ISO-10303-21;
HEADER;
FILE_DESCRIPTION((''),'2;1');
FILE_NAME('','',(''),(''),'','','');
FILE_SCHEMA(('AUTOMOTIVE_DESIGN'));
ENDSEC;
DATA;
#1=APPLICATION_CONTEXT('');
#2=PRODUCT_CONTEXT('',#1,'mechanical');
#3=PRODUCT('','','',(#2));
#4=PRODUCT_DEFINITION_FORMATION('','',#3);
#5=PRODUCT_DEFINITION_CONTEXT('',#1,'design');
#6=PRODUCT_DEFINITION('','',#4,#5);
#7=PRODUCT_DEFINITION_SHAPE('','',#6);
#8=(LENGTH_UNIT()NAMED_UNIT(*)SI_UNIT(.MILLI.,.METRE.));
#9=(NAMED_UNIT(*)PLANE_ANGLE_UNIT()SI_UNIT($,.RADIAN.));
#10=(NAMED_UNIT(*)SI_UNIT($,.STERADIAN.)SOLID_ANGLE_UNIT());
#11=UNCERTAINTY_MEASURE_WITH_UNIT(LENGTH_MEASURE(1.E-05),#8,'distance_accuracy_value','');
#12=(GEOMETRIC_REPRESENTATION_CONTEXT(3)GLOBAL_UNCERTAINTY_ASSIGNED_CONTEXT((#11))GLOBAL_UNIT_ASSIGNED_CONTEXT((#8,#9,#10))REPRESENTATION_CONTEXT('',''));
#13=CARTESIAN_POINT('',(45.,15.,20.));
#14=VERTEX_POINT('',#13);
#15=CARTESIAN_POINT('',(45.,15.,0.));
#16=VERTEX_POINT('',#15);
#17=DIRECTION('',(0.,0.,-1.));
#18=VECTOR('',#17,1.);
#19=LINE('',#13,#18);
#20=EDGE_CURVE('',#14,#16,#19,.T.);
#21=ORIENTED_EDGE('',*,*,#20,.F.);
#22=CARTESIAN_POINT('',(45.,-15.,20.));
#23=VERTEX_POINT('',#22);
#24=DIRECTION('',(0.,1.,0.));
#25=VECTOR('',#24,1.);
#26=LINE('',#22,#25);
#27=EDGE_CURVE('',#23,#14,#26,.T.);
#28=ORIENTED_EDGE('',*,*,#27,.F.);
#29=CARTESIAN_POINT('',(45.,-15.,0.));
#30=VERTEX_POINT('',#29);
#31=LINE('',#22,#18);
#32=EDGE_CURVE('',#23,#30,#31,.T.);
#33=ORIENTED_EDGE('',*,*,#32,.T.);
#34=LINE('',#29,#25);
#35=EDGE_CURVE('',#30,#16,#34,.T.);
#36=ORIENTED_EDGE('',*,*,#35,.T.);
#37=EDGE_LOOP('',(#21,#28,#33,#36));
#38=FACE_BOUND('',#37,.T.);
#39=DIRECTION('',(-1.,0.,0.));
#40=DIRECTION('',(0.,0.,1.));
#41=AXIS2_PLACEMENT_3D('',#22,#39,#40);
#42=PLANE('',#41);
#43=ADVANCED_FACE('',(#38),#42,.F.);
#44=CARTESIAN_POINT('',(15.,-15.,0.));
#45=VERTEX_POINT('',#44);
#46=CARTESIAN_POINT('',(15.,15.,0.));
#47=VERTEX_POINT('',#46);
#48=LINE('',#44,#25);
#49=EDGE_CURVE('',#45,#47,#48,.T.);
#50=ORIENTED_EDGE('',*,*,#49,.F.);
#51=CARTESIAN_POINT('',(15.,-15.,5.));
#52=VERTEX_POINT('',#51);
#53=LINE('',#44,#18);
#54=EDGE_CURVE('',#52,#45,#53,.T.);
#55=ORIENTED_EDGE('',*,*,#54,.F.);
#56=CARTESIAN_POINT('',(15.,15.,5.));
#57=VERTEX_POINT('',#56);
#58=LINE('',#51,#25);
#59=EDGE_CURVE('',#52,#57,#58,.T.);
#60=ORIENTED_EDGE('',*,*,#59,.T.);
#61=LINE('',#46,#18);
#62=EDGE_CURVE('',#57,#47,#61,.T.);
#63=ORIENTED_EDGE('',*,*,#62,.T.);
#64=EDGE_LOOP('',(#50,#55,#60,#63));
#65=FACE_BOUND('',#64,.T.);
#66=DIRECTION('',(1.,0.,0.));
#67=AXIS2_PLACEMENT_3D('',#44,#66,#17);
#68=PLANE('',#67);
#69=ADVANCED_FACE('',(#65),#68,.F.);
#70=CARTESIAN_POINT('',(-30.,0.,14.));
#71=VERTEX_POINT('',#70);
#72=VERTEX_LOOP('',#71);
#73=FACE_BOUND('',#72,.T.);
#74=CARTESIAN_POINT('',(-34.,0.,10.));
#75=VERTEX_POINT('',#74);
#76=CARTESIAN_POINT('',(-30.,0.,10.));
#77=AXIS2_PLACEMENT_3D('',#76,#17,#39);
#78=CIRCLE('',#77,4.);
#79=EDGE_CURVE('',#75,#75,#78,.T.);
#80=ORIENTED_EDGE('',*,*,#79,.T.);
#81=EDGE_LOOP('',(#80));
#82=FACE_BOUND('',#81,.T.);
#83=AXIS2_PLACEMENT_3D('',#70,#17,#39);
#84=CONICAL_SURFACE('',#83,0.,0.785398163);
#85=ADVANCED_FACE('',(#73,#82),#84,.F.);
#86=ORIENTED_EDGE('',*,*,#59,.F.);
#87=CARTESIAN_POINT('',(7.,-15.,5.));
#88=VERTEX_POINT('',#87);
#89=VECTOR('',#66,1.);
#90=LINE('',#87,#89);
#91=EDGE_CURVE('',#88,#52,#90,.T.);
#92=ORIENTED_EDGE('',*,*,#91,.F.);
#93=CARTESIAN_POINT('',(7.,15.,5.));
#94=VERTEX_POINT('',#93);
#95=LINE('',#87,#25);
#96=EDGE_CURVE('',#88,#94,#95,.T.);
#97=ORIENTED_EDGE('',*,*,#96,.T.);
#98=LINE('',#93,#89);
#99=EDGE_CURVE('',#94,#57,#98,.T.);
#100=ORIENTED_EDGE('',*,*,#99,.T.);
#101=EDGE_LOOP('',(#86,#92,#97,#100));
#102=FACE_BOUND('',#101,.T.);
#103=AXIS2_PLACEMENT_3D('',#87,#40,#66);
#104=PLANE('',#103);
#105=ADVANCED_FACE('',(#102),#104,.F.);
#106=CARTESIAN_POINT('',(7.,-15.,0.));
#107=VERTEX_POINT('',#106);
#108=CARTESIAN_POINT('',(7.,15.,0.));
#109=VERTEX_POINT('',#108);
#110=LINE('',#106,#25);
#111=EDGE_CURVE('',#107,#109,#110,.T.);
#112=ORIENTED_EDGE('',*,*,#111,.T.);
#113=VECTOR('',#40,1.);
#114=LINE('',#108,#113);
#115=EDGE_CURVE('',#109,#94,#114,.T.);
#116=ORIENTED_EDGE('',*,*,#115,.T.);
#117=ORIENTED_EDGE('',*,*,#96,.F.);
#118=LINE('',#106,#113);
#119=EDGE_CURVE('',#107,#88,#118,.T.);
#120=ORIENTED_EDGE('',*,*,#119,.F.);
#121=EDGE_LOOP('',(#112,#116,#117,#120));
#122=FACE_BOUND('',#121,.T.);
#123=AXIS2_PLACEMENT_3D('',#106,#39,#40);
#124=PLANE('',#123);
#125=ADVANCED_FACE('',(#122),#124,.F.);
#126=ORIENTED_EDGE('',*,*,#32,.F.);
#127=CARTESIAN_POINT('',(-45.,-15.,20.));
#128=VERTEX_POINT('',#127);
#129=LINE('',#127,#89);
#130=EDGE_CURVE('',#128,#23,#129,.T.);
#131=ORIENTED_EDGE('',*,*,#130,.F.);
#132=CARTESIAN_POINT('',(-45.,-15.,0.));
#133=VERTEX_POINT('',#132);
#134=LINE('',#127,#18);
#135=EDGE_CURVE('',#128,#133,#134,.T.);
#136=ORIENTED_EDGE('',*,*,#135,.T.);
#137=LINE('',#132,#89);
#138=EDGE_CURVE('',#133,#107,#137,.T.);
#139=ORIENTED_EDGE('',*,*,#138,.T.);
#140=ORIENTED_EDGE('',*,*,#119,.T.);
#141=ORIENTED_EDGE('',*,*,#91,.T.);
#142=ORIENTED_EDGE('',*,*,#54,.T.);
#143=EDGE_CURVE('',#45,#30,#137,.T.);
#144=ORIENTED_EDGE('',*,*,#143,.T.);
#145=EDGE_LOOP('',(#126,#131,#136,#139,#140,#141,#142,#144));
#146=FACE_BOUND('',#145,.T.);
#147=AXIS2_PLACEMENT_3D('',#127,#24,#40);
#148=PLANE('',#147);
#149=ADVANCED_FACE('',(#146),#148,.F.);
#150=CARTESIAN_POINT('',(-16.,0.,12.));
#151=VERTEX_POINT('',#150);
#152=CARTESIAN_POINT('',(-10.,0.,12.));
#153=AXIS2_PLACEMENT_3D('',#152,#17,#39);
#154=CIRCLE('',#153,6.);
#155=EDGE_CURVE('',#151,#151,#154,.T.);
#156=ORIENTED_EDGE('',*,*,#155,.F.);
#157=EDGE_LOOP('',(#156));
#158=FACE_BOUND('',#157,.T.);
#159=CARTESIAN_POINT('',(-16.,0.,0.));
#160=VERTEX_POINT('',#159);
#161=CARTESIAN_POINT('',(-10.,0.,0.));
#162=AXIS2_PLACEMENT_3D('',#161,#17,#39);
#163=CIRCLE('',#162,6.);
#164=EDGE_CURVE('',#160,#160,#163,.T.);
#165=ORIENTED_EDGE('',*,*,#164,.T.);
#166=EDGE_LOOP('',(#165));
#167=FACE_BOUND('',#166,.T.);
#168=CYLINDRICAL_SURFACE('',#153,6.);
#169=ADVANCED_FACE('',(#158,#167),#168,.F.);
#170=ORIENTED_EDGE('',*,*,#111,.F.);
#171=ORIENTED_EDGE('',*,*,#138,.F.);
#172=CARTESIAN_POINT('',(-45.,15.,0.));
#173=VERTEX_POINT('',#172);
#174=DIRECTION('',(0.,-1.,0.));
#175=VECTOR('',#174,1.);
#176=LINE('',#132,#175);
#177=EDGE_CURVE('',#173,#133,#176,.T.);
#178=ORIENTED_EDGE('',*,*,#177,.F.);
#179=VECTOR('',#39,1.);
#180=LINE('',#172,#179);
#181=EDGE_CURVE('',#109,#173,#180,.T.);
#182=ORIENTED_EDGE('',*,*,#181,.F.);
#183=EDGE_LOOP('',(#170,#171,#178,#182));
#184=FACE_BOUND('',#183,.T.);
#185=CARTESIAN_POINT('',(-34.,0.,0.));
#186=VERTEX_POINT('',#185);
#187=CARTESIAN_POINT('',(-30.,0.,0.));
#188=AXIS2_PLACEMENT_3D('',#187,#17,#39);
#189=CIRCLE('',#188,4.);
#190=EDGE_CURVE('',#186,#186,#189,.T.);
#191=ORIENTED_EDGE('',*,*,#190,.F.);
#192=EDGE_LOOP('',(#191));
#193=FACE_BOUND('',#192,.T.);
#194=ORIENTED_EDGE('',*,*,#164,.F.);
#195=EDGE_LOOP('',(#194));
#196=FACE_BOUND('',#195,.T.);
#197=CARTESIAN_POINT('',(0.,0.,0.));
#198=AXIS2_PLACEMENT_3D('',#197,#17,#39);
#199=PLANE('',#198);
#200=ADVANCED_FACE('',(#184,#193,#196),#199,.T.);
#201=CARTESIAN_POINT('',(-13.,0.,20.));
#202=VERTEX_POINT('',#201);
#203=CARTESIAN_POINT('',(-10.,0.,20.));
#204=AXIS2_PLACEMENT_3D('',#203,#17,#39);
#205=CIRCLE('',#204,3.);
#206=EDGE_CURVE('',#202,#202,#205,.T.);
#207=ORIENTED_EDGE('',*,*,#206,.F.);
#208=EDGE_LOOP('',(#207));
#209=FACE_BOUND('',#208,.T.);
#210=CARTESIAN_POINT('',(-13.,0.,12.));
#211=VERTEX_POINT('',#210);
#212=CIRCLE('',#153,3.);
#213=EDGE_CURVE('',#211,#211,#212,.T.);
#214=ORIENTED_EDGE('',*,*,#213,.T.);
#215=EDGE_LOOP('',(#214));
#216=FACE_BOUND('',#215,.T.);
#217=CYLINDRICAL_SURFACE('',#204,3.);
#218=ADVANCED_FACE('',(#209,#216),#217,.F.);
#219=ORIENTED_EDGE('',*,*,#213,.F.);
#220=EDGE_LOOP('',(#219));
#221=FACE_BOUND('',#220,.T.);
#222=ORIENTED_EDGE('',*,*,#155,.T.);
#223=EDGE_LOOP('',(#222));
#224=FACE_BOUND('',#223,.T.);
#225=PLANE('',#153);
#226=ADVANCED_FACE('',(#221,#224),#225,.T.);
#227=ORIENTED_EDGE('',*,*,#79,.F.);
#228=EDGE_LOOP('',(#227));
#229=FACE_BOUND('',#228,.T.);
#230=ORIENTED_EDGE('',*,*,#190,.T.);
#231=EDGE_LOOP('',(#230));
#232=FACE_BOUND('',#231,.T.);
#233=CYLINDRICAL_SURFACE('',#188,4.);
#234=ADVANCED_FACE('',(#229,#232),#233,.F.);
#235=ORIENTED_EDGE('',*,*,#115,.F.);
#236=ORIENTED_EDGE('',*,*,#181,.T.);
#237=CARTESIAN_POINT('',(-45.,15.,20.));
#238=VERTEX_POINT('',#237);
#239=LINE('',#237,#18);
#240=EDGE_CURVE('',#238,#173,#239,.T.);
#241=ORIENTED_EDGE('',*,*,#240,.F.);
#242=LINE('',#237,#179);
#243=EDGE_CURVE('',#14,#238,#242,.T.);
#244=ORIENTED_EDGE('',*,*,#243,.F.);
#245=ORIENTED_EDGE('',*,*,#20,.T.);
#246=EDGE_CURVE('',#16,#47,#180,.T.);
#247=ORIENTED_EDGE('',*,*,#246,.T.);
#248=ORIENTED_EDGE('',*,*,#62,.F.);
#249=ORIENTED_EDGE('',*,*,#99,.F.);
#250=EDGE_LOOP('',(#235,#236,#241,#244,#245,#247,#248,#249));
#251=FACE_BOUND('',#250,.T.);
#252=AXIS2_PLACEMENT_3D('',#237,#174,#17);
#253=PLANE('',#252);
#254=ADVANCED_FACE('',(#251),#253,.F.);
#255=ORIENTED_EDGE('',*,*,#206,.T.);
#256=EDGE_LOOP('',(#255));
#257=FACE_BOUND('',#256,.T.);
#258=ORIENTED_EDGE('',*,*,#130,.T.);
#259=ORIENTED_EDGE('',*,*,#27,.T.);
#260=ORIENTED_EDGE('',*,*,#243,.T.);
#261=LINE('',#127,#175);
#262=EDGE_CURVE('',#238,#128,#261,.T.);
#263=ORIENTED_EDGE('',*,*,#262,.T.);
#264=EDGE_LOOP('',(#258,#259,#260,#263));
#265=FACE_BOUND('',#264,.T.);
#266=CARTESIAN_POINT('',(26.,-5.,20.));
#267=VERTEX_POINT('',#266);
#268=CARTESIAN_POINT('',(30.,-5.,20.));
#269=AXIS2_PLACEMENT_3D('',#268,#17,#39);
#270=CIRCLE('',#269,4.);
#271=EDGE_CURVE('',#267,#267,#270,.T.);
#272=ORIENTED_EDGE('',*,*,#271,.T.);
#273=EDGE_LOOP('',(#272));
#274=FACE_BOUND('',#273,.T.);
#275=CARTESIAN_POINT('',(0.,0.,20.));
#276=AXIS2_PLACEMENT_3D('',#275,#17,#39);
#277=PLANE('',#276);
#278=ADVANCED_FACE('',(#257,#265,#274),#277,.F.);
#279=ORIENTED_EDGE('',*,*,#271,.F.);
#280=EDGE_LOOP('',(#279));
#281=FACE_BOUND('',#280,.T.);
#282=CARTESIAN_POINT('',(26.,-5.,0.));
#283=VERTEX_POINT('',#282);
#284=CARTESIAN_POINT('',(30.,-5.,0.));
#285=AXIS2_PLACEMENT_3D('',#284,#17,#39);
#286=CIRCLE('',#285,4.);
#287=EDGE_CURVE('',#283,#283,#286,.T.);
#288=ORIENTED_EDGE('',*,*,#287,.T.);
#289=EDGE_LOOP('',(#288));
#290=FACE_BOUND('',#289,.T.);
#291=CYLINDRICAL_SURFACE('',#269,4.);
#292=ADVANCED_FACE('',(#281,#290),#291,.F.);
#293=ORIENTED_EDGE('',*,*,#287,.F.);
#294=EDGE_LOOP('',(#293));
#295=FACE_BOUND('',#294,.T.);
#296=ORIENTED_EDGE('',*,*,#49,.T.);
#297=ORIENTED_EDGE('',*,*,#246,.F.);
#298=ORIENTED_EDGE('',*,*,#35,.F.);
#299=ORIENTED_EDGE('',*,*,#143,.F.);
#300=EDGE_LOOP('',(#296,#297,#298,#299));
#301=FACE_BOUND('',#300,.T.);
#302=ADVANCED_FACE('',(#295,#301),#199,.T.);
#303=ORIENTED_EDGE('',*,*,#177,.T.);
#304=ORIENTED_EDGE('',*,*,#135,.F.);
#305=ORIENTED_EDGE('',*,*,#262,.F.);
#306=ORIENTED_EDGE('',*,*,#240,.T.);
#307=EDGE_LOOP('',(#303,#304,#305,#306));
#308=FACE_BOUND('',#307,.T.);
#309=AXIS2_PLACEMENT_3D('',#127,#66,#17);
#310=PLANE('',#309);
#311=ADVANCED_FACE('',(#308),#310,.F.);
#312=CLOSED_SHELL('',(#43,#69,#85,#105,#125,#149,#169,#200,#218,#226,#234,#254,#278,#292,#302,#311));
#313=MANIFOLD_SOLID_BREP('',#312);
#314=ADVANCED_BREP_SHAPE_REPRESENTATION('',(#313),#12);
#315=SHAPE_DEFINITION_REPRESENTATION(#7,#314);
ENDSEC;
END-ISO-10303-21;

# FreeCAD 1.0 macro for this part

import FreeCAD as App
import Part
import Sketcher

V = App.Vector

doc = App.newDocument("Part")
params = doc.addObject("Spreadsheet::Sheet", "Params")
for row, (alias, value) in enumerate([
    ("sketch1_width", "90 mm"),
    ("sketch1_height", "30 mm"),
    ("pad1_length", "20 mm"),
    ("sketch2_width", "4 mm"),
    ("sketch2_height", "14 mm"),
    ("sketch2_height2", "10 mm"),
    ("groove_angle", "360 deg"),
    ("sketch3_diameter", "12 mm"),
    ("pocket1_length", "12 mm"),
    ("sketch4_diameter", "6 mm"),
    ("sketch5_width", "8 mm"),
    ("sketch5_height", "5 mm"),
    ("sketch6_diameter", "8 mm"),
], start=1):
    params.set(f"A{row}", alias)
    params.set(f"B{row}", "=" + value)
    params.setAlias(f"B{row}", alias)

body = doc.addObject("PartDesign::Body", "Body")

sketch1 = doc.addObject("Sketcher::SketchObject", "Sketch")
body.addObject(sketch1)
sketch1.AttachmentSupport = (doc.XY_Plane, [""])
sketch1.MapMode = "FlatFace"
sketch1.addGeometry([
    Part.LineSegment(V(-45, 15, 0), V(-45, -15, 0)),
    Part.LineSegment(V(-45, -15, 0), V(45, -15, 0)),
    Part.LineSegment(V(45, -15, 0), V(45, 15, 0)),
    Part.LineSegment(V(45, 15, 0), V(-45, 15, 0)),
], False)
sketch1.addConstraint([
    Sketcher.Constraint("Coincident", 0, 2, 1, 1),
    Sketcher.Constraint("Coincident", 1, 2, 2, 1),
    Sketcher.Constraint("Coincident", 2, 2, 3, 1),
    Sketcher.Constraint("Coincident", 3, 2, 0, 1),
    Sketcher.Constraint("Vertical", 0),
    Sketcher.Constraint("Horizontal", 1),
    Sketcher.Constraint("Vertical", 2),
    Sketcher.Constraint("Horizontal", 3),
    Sketcher.Constraint("Symmetric", 0, 2, 2, 2, -1, 1),
    Sketcher.Constraint("DistanceX", 1, 1, 1, 2, 90.0),
    Sketcher.Constraint("DistanceY", 0, 2, 0, 1, 30.0),
])
sketch1.setExpression("Constraints[9]", "Params.sketch1_width")
sketch1.setExpression("Constraints[10]", "Params.sketch1_height")
pad1 = doc.addObject("PartDesign::Pad", "Pad")
body.addObject(pad1)
pad1.Profile = sketch1
pad1.setExpression("Length", "Params.pad1_length")

sketch2 = doc.addObject("Sketcher::SketchObject", "Sketch001")
body.addObject(sketch2)
sketch2.AttachmentSupport = (doc.XZ_Plane, [""])
sketch2.MapMode = "FlatFace"
sketch2.addGeometry([
    Part.LineSegment(V(-26, 0, 0), V(-30, 0, 0)),
    Part.LineSegment(V(-30, 0, 0), V(-30, 14, 0)),
    Part.LineSegment(V(-30, 14, 0), V(-26, 10, 0)),
    Part.LineSegment(V(-26, 10, 0), V(-26, 0, 0)),
], False)
sketch2.addGeometry(Part.LineSegment(V(-30, 0, 0), V(-30, 14, 0)), True)
sketch2.addConstraint([
    Sketcher.Constraint("Coincident", 0, 2, 1, 1),
    Sketcher.Constraint("Coincident", 1, 2, 2, 1),
    Sketcher.Constraint("Coincident", 2, 2, 3, 1),
    Sketcher.Constraint("Coincident", 3, 2, 0, 1),
    Sketcher.Constraint("Horizontal", 0),
    Sketcher.Constraint("Vertical", 1),
    Sketcher.Constraint("Vertical", 3),
    Sketcher.Constraint("Vertical", 4),
    Sketcher.Constraint("Coincident", 4, 1, 0, 2),
    Sketcher.Constraint("PointOnObject", 0, 2, -1),
    Sketcher.Constraint("Equal", 1, 4),
    Sketcher.Constraint("DistanceX", 0, 2, 0, 1, 4.0),
    Sketcher.Constraint("DistanceY", 1, 1, 1, 2, 14.0),
    Sketcher.Constraint("DistanceY", 3, 2, 3, 1, 10.0),
    Sketcher.Constraint("DistanceX", 0, 2, -1, 1, 30.0),
])
sketch2.setExpression("Constraints[11]", "Params.sketch2_width")
sketch2.setExpression("Constraints[12]", "Params.sketch2_height")
sketch2.setExpression("Constraints[13]", "Params.sketch2_height2")
groove = doc.addObject("PartDesign::Groove", "Groove")
body.addObject(groove)
groove.Profile = sketch2
groove.ReferenceAxis = (sketch2, ["Axis0"])
groove.setExpression("Angle", "Params.groove_angle")

sketch3 = doc.addObject("Sketcher::SketchObject", "Sketch002")
body.addObject(sketch3)
sketch3.AttachmentSupport = (doc.XY_Plane, [""])
sketch3.MapMode = "FlatFace"
sketch3.addGeometry(Part.Circle(V(-10, 0, 0), V(0, 0, 1), 6), False)
sketch3.addConstraint([
    Sketcher.Constraint("PointOnObject", 0, 3, -1),
    Sketcher.Constraint("Diameter", 0, 12.0),
    Sketcher.Constraint("DistanceX", 0, 3, -1, 1, 10.0),
])
sketch3.setExpression("Constraints[1]", "Params.sketch3_diameter")
pocket1 = doc.addObject("PartDesign::Pocket", "Pocket")
body.addObject(pocket1)
pocket1.Profile = sketch3
pocket1.setExpression("Length", "Params.pocket1_length")
pocket1.Reversed = True

sketch4 = doc.addObject("Sketcher::SketchObject", "Sketch003")
body.addObject(sketch4)
sketch4.AttachmentSupport = (doc.XY_Plane, [""])
sketch4.MapMode = "FlatFace"
sketch4.AttachmentOffset = App.Placement(V(0, 0, 12), App.Rotation())
sketch4.addGeometry(Part.Circle(V(-10, 0, 0), V(0, 0, 1), 3), False)
sketch4.addConstraint([
    Sketcher.Constraint("PointOnObject", 0, 3, -1),
    Sketcher.Constraint("Diameter", 0, 6.0),
    Sketcher.Constraint("DistanceX", 0, 3, -1, 1, 10.0),
])
sketch4.setExpression("Constraints[1]", "Params.sketch4_diameter")
pocket2 = doc.addObject("PartDesign::Pocket", "Pocket001")
body.addObject(pocket2)
pocket2.Profile = sketch4
pocket2.Type = "ThroughAll"
pocket2.Reversed = True

sketch5 = doc.addObject("Sketcher::SketchObject", "Sketch004")
body.addObject(sketch5)
sketch5.AttachmentSupport = (doc.XZ_Plane, [""])
sketch5.MapMode = "FlatFace"
sketch5.AttachmentOffset = App.Placement(V(0, 0, -15), App.Rotation())
sketch5.addGeometry([
    Part.LineSegment(V(7, 0, 0), V(7, 5, 0)),
    Part.LineSegment(V(7, 5, 0), V(15, 5, 0)),
    Part.LineSegment(V(15, 5, 0), V(15, 0, 0)),
    Part.LineSegment(V(15, 0, 0), V(7, 0, 0)),
], False)
sketch5.addConstraint([
    Sketcher.Constraint("Coincident", 0, 2, 1, 1),
    Sketcher.Constraint("Coincident", 1, 2, 2, 1),
    Sketcher.Constraint("Coincident", 2, 2, 3, 1),
    Sketcher.Constraint("Coincident", 3, 2, 0, 1),
    Sketcher.Constraint("Vertical", 0),
    Sketcher.Constraint("Horizontal", 1),
    Sketcher.Constraint("Vertical", 2),
    Sketcher.Constraint("Horizontal", 3),
    Sketcher.Constraint("PointOnObject", 2, 2, -1),
    Sketcher.Constraint("DistanceX", 1, 1, 1, 2, 8.0),
    Sketcher.Constraint("DistanceY", 0, 1, 0, 2, 5.0),
    Sketcher.Constraint("DistanceX", -1, 1, 0, 2, 7.0),
])
sketch5.setExpression("Constraints[9]", "Params.sketch5_width")
sketch5.setExpression("Constraints[10]", "Params.sketch5_height")
pocket3 = doc.addObject("PartDesign::Pocket", "Pocket002")
body.addObject(pocket3)
pocket3.Profile = sketch5
pocket3.Type = "ThroughAll"
pocket3.Reversed = True

sketch6 = doc.addObject("Sketcher::SketchObject", "Sketch005")
body.addObject(sketch6)
sketch6.AttachmentSupport = (doc.XY_Plane, [""])
sketch6.MapMode = "FlatFace"
sketch6.addGeometry(Part.Circle(V(30, -5, 0), V(0, 0, 1), 4), False)
sketch6.addConstraint([
    Sketcher.Constraint("Diameter", 0, 8.0),
    Sketcher.Constraint("DistanceX", -1, 1, 0, 3, 30.0),
    Sketcher.Constraint("DistanceY", 0, 3, -1, 1, 5.0),
])
sketch6.setExpression("Constraints[0]", "Params.sketch6_diameter")
pocket4 = doc.addObject("PartDesign::Pocket", "Pocket003")
body.addObject(pocket4)
pocket4.Profile = sketch6
pocket4.Type = "ThroughAll"
pocket4.Reversed = True

doc.recompute()
